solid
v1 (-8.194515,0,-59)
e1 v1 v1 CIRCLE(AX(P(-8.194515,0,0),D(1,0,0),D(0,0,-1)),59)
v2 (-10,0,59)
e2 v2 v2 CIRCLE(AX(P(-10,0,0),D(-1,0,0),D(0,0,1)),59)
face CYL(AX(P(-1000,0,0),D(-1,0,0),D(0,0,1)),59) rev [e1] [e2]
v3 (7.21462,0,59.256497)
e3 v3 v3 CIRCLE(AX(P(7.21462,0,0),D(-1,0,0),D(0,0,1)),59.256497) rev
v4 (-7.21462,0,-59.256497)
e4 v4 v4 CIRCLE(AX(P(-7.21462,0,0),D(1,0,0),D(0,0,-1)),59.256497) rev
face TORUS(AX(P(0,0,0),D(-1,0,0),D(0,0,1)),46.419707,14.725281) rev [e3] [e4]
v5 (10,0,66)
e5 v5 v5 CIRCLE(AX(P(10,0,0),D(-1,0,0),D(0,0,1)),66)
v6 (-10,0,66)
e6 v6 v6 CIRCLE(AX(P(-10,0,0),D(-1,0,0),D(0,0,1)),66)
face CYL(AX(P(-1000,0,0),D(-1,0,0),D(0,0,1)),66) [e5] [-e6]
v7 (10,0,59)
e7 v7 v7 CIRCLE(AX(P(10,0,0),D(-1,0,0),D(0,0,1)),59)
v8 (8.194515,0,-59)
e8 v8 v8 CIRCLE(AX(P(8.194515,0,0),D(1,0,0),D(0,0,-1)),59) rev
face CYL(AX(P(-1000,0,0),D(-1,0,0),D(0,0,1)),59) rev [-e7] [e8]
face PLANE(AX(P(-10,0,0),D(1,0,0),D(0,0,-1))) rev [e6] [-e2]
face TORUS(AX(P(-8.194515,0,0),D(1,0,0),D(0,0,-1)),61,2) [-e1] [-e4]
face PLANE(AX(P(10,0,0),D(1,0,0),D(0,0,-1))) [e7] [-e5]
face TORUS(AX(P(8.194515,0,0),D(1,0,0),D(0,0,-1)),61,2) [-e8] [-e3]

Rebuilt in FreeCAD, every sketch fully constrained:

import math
import FreeCAD as App
import Part
import Sketcher


def edges_at(feature, points):
    """Names of the edges that pass closest to the given points."""
    edges = feature.Shape.Edges
    near = lambda p: min(range(len(edges)), key=lambda i: edges[i].distToShape(Part.Vertex(*p))[0])
    return sorted({f"Edge{near(p) + 1}" for p in points})

doc = App.newDocument("Part")
body = doc.addObject("PartDesign::Body", "Body")

sketch1 = body.newObject("Sketcher::SketchObject", "Sketch")
sketch1.AttachmentSupport = (doc.getObject("XY_Plane"), [""])
sketch1.MapMode = "FlatFace"
sketch1.addGeometry([
    Part.ArcOfCircle(Part.Circle(App.Vector(0, 46.419707, 0), App.Vector(0, 0, 1), 14.725281), math.radians(58.686121), math.radians(121.313879)),
    Part.LineSegment(App.Vector(7.653113, 59, 0), App.Vector(10, 59, 0)),
    Part.LineSegment(App.Vector(10, 59, 0), App.Vector(10, 66, 0)),
    Part.LineSegment(App.Vector(10, 66, 0), App.Vector(-10, 66, 0)),
    Part.LineSegment(App.Vector(-10, 66, 0), App.Vector(-10, 59, 0)),
    Part.LineSegment(App.Vector(-10, 59, 0), App.Vector(-7.653113, 59, 0)),
], False)
sketch1.addConstraint([
    Sketcher.Constraint("Coincident", 0, 1, 1, 1),
    Sketcher.Constraint("Coincident", 1, 2, 2, 1),
    Sketcher.Constraint("Coincident", 2, 2, 3, 1),
    Sketcher.Constraint("Coincident", 3, 2, 4, 1),
    Sketcher.Constraint("Coincident", 4, 2, 5, 1),
    Sketcher.Constraint("Coincident", 5, 2, 0, 2),
    Sketcher.Constraint("Horizontal", 1),
    Sketcher.Constraint("Vertical", 2),
    Sketcher.Constraint("Horizontal", 3),
    Sketcher.Constraint("Vertical", 4),
    Sketcher.Constraint("Horizontal", 5),
    Sketcher.Constraint("Symmetric", 1, 2, 4, 2, -2),
    Sketcher.Constraint("PointOnObject", 0, 3, -2),
    Sketcher.Constraint("DistanceX", 3, 2, 3, 1, 20.0),
    Sketcher.Constraint("DistanceY", 2, 1, 2, 2, 7.0),
    Sketcher.Constraint("DistanceY", -1, 1, 0, 1, 59.0),
    Sketcher.Constraint("Radius", 0, 14.725281),
    Sketcher.Constraint("DistanceX", 1, 1, 1, 2, 2.346887),
])
revolution = body.newObject("PartDesign::Revolution", "Revolution")
revolution.Profile = sketch1
revolution.ReferenceAxis = (sketch1, ["H_Axis"])
revolution.Angle = 360
doc.recompute()

fillet = body.newObject("PartDesign::Fillet", "Fillet")
fillet.Base = (revolution, edges_at(revolution, [(-7.653, 0, -59), (7.653, 0, -59)]))
fillet.Radius = 2

doc.recompute()
